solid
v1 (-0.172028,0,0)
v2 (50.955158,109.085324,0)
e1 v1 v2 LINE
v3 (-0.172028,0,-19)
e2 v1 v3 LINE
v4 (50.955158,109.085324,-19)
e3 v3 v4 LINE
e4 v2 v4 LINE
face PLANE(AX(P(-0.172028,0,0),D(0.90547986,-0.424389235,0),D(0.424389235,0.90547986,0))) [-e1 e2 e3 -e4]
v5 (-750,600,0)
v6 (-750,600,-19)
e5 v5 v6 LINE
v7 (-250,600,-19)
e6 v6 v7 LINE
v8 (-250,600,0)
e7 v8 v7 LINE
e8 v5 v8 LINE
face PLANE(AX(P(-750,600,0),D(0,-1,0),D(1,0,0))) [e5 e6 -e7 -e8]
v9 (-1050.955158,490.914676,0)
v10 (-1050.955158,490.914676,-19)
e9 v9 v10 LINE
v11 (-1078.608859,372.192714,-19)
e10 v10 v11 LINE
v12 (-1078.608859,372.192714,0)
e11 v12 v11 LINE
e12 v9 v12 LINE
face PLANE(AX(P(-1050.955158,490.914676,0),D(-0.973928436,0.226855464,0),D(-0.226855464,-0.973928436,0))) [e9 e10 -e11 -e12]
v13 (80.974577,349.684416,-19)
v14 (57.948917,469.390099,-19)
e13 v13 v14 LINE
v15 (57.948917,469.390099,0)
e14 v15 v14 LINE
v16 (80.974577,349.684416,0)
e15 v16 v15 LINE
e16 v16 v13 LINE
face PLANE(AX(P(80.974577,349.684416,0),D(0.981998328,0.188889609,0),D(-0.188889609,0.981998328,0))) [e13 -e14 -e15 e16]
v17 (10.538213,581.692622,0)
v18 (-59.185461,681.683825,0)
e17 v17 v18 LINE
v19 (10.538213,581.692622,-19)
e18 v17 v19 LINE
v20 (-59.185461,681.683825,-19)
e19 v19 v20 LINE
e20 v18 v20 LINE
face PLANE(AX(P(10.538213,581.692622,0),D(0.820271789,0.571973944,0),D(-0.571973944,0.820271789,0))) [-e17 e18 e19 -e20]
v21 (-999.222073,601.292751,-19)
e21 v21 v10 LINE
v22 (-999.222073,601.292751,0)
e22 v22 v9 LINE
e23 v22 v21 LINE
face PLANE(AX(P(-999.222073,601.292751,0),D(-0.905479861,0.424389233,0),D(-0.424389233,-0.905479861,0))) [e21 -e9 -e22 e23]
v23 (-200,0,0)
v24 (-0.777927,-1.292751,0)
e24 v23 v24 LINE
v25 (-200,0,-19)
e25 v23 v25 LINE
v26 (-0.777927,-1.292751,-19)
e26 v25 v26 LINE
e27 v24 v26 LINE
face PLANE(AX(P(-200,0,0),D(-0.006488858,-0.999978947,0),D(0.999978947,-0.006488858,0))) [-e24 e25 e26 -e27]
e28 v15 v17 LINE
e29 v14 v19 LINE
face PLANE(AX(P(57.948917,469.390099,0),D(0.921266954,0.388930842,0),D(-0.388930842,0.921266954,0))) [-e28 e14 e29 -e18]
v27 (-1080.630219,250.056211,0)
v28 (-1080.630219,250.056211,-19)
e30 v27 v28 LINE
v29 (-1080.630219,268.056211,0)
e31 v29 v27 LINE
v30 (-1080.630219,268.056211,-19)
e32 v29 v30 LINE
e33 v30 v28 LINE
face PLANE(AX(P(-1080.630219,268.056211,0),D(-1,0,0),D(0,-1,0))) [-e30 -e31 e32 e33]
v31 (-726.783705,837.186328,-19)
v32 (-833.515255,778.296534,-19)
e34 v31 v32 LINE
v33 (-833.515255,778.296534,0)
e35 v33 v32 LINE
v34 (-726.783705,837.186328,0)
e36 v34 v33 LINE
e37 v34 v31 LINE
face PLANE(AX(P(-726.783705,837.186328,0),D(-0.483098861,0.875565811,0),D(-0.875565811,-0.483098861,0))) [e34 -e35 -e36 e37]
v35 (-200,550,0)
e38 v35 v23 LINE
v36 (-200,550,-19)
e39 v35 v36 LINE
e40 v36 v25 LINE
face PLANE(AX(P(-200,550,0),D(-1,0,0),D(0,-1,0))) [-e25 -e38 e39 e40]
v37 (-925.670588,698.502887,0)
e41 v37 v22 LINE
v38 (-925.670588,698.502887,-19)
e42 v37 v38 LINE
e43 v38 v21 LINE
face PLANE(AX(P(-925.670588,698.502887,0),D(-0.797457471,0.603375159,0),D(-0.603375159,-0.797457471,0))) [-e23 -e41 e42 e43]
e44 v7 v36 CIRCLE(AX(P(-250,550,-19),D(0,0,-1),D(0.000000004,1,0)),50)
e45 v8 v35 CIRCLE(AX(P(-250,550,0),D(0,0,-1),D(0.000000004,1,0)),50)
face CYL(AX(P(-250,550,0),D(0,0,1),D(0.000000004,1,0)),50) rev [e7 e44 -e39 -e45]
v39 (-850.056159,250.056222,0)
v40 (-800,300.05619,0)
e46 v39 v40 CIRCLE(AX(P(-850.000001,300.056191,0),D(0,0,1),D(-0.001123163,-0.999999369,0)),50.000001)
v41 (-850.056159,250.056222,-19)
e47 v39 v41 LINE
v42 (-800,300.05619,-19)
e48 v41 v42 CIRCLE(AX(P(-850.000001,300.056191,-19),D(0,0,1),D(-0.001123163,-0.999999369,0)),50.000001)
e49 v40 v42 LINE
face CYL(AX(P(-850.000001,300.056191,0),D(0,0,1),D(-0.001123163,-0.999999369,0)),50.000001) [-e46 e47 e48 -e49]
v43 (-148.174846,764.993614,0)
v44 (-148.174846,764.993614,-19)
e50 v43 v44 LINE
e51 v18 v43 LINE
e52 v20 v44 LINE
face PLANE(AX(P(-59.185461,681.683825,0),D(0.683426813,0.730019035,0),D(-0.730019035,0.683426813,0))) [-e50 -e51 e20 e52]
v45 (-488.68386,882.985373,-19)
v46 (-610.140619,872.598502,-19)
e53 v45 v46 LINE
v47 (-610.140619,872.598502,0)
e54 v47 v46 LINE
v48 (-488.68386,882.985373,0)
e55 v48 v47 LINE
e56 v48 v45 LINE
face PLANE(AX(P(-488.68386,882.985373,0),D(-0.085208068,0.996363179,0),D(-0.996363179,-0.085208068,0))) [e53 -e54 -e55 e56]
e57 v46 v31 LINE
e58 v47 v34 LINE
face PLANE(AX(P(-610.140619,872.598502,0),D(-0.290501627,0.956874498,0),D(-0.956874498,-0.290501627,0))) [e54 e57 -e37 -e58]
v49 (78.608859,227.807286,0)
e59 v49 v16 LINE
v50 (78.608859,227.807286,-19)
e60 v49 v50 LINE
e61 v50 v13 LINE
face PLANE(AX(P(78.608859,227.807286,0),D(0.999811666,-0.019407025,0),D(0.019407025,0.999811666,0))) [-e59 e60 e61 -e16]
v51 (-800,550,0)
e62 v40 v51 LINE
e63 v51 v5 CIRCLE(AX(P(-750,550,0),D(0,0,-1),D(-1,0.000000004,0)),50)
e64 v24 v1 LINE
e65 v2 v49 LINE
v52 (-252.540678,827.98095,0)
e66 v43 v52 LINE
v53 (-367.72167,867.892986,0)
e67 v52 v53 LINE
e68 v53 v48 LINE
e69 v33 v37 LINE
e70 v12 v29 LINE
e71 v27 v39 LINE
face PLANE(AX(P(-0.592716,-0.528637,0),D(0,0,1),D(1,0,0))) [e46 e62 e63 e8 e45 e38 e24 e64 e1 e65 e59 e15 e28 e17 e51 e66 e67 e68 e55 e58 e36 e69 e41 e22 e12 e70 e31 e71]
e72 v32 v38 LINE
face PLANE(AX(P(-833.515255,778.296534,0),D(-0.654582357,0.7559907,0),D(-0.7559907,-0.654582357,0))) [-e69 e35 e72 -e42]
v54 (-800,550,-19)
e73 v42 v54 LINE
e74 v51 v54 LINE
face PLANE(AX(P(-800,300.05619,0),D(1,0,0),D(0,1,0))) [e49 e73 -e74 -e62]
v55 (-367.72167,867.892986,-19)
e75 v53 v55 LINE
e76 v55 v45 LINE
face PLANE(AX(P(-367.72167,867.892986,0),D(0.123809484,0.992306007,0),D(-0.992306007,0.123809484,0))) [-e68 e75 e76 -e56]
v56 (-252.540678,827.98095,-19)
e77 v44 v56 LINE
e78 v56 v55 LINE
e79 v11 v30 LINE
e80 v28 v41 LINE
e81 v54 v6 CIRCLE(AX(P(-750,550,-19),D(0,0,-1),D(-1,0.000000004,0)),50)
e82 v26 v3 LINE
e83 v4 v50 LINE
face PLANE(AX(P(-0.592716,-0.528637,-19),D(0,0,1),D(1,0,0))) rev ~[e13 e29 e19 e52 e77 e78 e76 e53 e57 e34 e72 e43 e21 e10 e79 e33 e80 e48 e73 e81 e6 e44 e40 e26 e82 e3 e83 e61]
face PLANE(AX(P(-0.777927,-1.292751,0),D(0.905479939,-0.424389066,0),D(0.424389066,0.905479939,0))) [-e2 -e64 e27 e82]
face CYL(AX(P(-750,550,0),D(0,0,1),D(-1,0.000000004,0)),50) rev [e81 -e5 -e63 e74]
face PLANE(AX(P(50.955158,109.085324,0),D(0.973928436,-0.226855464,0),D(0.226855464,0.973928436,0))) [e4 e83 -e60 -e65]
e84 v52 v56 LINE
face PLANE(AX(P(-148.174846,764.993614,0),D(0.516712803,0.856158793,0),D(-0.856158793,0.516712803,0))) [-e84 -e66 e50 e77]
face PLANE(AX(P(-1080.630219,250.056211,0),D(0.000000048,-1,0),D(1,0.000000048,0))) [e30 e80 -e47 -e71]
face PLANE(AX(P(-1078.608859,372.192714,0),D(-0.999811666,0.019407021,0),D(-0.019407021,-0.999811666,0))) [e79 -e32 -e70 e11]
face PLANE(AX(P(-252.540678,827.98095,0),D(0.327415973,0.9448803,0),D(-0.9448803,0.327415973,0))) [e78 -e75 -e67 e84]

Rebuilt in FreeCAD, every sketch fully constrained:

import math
import FreeCAD as App
import Part
import Sketcher
from FreeCAD import Vector
Q = App.Units.Quantity

doc = App.newDocument("Part")
body = doc.addObject("PartDesign::Body", "Body")

# Sketch on XY plane
sketch1 = body.newObject("Sketcher::SketchObject", "Sketch")
sketch1.AttachmentSupport = (doc.getObject("XY_Plane"), [""])
sketch1.MapMode = "FlatFace"
sketch1.addGeometry([
    Part.LineSegment(Vector(-0.777927, -1.292751, 0), Vector(-0.172028, 0, 0)),  # 0
    Part.LineSegment(Vector(-0.172028, 0, 0), Vector(50.955158, 109.085324, 0)),  # 1
    Part.LineSegment(Vector(50.955158, 109.085324, 0), Vector(78.608859, 227.807286, 0)),  # 2
    Part.LineSegment(Vector(78.608859, 227.807286, 0), Vector(80.974577, 349.684416, 0)),  # 3
    Part.LineSegment(Vector(80.974577, 349.684416, 0), Vector(57.948917, 469.390099, 0)),  # 4
    Part.LineSegment(Vector(57.948917, 469.390099, 0), Vector(10.538213, 581.692622, 0)),  # 5
    Part.LineSegment(Vector(10.538213, 581.692622, 0), Vector(-59.185461, 681.683825, 0)),  # 6
    Part.LineSegment(Vector(-59.185461, 681.683825, 0), Vector(-148.174846, 764.993614, 0)),  # 7
    Part.LineSegment(Vector(-148.174846, 764.993614, 0), Vector(-252.540678, 827.98095, 0)),  # 8
    Part.LineSegment(Vector(-252.540678, 827.98095, 0), Vector(-367.72167, 867.892986, 0)),  # 9
    Part.LineSegment(Vector(-367.72167, 867.892986, 0), Vector(-488.68386, 882.985373, 0)),  # 10
    Part.LineSegment(Vector(-488.68386, 882.985373, 0), Vector(-610.140619, 872.598502, 0)),  # 11
    Part.LineSegment(Vector(-610.140619, 872.598502, 0), Vector(-726.783705, 837.186328, 0)),  # 12
    Part.LineSegment(Vector(-726.783705, 837.186328, 0), Vector(-833.515255, 778.296534, 0)),  # 13
    Part.LineSegment(Vector(-833.515255, 778.296534, 0), Vector(-925.670588, 698.502887, 0)),  # 14
    Part.LineSegment(Vector(-925.670588, 698.502887, 0), Vector(-999.222073, 601.292751, 0)),  # 15
    Part.LineSegment(Vector(-999.222073, 601.292751, 0), Vector(-1050.955158, 490.914676, 0)),  # 16
    Part.LineSegment(Vector(-1050.955158, 490.914676, 0), Vector(-1078.608859, 372.192714, 0)),  # 17
    Part.LineSegment(Vector(-1078.608859, 372.192714, 0), Vector(-1080.630219, 268.056211, 0)),  # 18
    Part.LineSegment(Vector(-1080.630219, 268.056211, 0), Vector(-1080.630219, 250.056211, 0)),  # 19
    Part.LineSegment(Vector(-1080.630219, 250.056211, 0), Vector(-850.056159, 250.056222, 0)),  # 20
    Part.ArcOfCircle(Part.Circle(Vector(-850.000001, 300.056191, 0), Vector(0, 0, 1), 50.000001), math.radians(-90.064352), math.radians(-0.000002)),  # 21
    Part.LineSegment(Vector(-800, 300.05619, 0), Vector(-800, 550, 0)),  # 22
    Part.ArcOfCircle(Part.Circle(Vector(-750, 550, 0), Vector(0, 0, 1), 50), math.radians(90), math.radians(180)),  # 23
    Part.LineSegment(Vector(-750, 600, 0), Vector(-250, 600, 0)),  # 24
    Part.ArcOfCircle(Part.Circle(Vector(-250, 550, 0), Vector(0, 0, 1), 50), math.radians(0), math.radians(90)),  # 25
    Part.LineSegment(Vector(-200, 550, 0), Vector(-200, 0, 0)),  # 26
    Part.LineSegment(Vector(-200, 0, 0), Vector(-0.777927, -1.292751, 0)),  # 27
], False)
sketch1.addConstraint([
    Sketcher.Constraint("Coincident", 0, 2, 1, 1),
    Sketcher.Constraint("Coincident", 1, 2, 2, 1),
    Sketcher.Constraint("Coincident", 2, 2, 3, 1),
    Sketcher.Constraint("Coincident", 3, 2, 4, 1),
    Sketcher.Constraint("Coincident", 4, 2, 5, 1),
    Sketcher.Constraint("Coincident", 5, 2, 6, 1),
    Sketcher.Constraint("Coincident", 6, 2, 7, 1),
    Sketcher.Constraint("Coincident", 7, 2, 8, 1),
    Sketcher.Constraint("Coincident", 8, 2, 9, 1),
    Sketcher.Constraint("Coincident", 9, 2, 10, 1),
    Sketcher.Constraint("Coincident", 10, 2, 11, 1),
    Sketcher.Constraint("Coincident", 11, 2, 12, 1),
    Sketcher.Constraint("Coincident", 12, 2, 13, 1),
    Sketcher.Constraint("Coincident", 13, 2, 14, 1),
    Sketcher.Constraint("Coincident", 14, 2, 15, 1),
    Sketcher.Constraint("Coincident", 15, 2, 16, 1),
    Sketcher.Constraint("Coincident", 16, 2, 17, 1),
    Sketcher.Constraint("Coincident", 17, 2, 18, 1),
    Sketcher.Constraint("Coincident", 18, 2, 19, 1),
    Sketcher.Constraint("Coincident", 19, 2, 20, 1),
    Sketcher.Constraint("Coincident", 20, 2, 21, 1),
    Sketcher.Constraint("Tangent", 21, 2, 22, 1),
    Sketcher.Constraint("Tangent", 22, 2, 23, 2),
    Sketcher.Constraint("Tangent", 23, 1, 24, 1),
    Sketcher.Constraint("Tangent", 24, 2, 25, 2),
    Sketcher.Constraint("Tangent", 25, 1, 26, 1),
    Sketcher.Constraint("Coincident", 26, 2, 27, 1),
    Sketcher.Constraint("Coincident", 27, 2, 0, 1),
    Sketcher.Constraint("Vertical", 19),
    Sketcher.Constraint("Vertical", 22),
    Sketcher.Constraint("Horizontal", 24),
    Sketcher.Constraint("Vertical", 26),
    Sketcher.Constraint("Equal", 21, 23),
    Sketcher.Constraint("Equal", 23, 25),
    Sketcher.Constraint("PointOnObject", 0, 2, -1),
    Sketcher.Constraint("PointOnObject", 26, 2, -1),
    Sketcher.Constraint("Parallel", 0, 1),
    Sketcher.Constraint("Parallel", 1, 16),
    Sketcher.Constraint("Parallel", 2, 17),
    Sketcher.Constraint("Parallel", 3, 18),
    Sketcher.Constraint("Equal", 2, 3),
    Sketcher.Constraint("Equal", 3, 4),
    Sketcher.Constraint("Equal", 4, 5),
    Sketcher.Constraint("Equal", 5, 6),
    Sketcher.Constraint("Equal", 6, 7),
    Sketcher.Constraint("Equal", 7, 8),
    Sketcher.Constraint("Equal", 8, 9),
    Sketcher.Constraint("Equal", 9, 10),
    Sketcher.Constraint("Equal", 10, 11),
    Sketcher.Constraint("Equal", 11, 12),
    Sketcher.Constraint("Equal", 12, 13),
    Sketcher.Constraint("Equal", 13, 14),
    Sketcher.Constraint("Equal", 14, 15),
    Sketcher.Constraint("Equal", 15, 16),
    Sketcher.Constraint("Equal", 16, 17),
    Sketcher.Constraint("Radius", 21, 50.000001),
    Sketcher.Constraint("DistanceX", 24, 1, 24, 2, 500.0),
    Sketcher.Constraint("DistanceY", 19, 2, 19, 1, 18.0),
    Sketcher.Constraint("DistanceY", 26, 2, 26, 1, 550.0),
    Sketcher.Constraint("Angle", 20, Q("0.000003 deg")),
    Sketcher.Constraint("DistanceX", 21, 3, -1, 1, 850.000001),
    Sketcher.Constraint("DistanceX", 16, 2, 20, 2, 200.898999),
    Sketcher.Constraint("DistanceY", 22, 1, 22, 2, 249.94381),
    Sketcher.Constraint("DistanceY", -1, 1, 4, 2, 469.390099),
    Sketcher.Constraint("DistanceX", 1, 2, 2, 2, 27.653701),
    Sketcher.Constraint("DistanceY", 1, 2, 5, 2, 472.607298),
    Sketcher.Constraint("DistanceY", 3, 2, 7, 2, 415.309198),
    Sketcher.Constraint("DistanceX", 27, 2, 0, 2, 0.605899),
    Sketcher.Constraint("Distance", 1, 120.472391),
    Sketcher.Constraint("Distance", 4, 121.900088),
    Sketcher.Constraint("Distance", 18, 104.156119),
    Sketcher.Constraint("Distance", 20, 230.57406),
    Sketcher.Constraint("DistanceX", -1, 1, 2, 2, 78.608859),
    Sketcher.Constraint("DistanceY", -1, 1, 5, 2, 581.692622),
    Sketcher.Constraint("DistanceX", 6, 2, -1, 1, 59.185461),
    Sketcher.Constraint("DistanceX", 8, 2, -1, 1, 252.540678),
    Sketcher.Constraint("DistanceX", 9, 2, -1, 1, 367.72167),
    Sketcher.Constraint("DistanceX", 10, 2, -1, 1, 488.68386),
    Sketcher.Constraint("DistanceX", 11, 2, -1, 1, 610.140619),
    Sketcher.Constraint("DistanceY", -1, 1, 12, 2, 837.186328),
    Sketcher.Constraint("DistanceX", 14, 2, -1, 1, 925.670588),
    Sketcher.Constraint("DistanceX", 16, 2, -1, 1, 1050.955158),
])
pad1 = body.newObject("PartDesign::Pad", "Pad")
pad1.Profile = sketch1
pad1.Length = 19
pad1.Reversed = True

doc.recompute()
